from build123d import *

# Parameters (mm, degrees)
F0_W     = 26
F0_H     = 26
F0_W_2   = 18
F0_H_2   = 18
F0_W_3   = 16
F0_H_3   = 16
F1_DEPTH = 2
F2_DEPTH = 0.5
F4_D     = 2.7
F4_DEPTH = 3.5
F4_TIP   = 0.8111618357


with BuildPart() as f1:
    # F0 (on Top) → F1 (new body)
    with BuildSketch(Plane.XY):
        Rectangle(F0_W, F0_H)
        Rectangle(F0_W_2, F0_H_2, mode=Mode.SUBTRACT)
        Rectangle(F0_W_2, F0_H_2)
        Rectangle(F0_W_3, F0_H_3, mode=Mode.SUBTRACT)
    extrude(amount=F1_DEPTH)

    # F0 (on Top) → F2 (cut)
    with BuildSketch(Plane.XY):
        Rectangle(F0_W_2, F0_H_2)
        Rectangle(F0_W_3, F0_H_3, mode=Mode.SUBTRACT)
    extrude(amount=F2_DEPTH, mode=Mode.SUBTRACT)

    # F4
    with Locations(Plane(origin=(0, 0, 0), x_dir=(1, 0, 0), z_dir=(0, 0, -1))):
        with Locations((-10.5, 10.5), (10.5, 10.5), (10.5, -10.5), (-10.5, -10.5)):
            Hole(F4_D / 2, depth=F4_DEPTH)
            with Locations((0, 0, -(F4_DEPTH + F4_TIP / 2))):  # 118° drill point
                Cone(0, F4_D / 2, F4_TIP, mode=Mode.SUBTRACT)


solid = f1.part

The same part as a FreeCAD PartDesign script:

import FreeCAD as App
import Part
import Sketcher

doc = App.newDocument("Part")
body = doc.addObject("PartDesign::Body", "Body")

# Sketch on XY plane
sketch1 = doc.addObject("Sketcher::SketchObject", "Sketch")
body.addObject(sketch1)
sketch1.AttachmentSupport = (doc.XY_Plane, [""])
sketch1.MapMode = "FlatFace"
sketch1.addGeometry(Part.LineSegment(App.Vector(-13, 13, 0), App.Vector(-13, -13, 0)), False)
sketch1.addGeometry(Part.LineSegment(App.Vector(-13, -13, 0), App.Vector(13, -13, 0)), False)
sketch1.addGeometry(Part.LineSegment(App.Vector(13, -13, 0), App.Vector(13, 13, 0)), False)
sketch1.addGeometry(Part.LineSegment(App.Vector(13, 13, 0), App.Vector(-13, 13, 0)), False)
sketch1.addGeometry(Part.LineSegment(App.Vector(8, -8, 0), App.Vector(-8, -8, 0)), False)
sketch1.addGeometry(Part.LineSegment(App.Vector(-8, -8, 0), App.Vector(-8, 8, 0)), False)
sketch1.addGeometry(Part.LineSegment(App.Vector(-8, 8, 0), App.Vector(8, 8, 0)), False)
sketch1.addGeometry(Part.LineSegment(App.Vector(8, 8, 0), App.Vector(8, -8, 0)), False)
sketch1.addConstraint(Sketcher.Constraint("Coincident", 0, 2, 1, 1))
sketch1.addConstraint(Sketcher.Constraint("Coincident", 1, 2, 2, 1))
sketch1.addConstraint(Sketcher.Constraint("Coincident", 2, 2, 3, 1))
sketch1.addConstraint(Sketcher.Constraint("Coincident", 3, 2, 0, 1))
sketch1.addConstraint(Sketcher.Constraint("Coincident", 4, 2, 5, 1))
sketch1.addConstraint(Sketcher.Constraint("Coincident", 5, 2, 6, 1))
sketch1.addConstraint(Sketcher.Constraint("Coincident", 6, 2, 7, 1))
sketch1.addConstraint(Sketcher.Constraint("Coincident", 7, 2, 4, 1))
sketch1.addConstraint(Sketcher.Constraint("Vertical", 0))
sketch1.addConstraint(Sketcher.Constraint("Horizontal", 1))
sketch1.addConstraint(Sketcher.Constraint("Vertical", 2))
sketch1.addConstraint(Sketcher.Constraint("Horizontal", 3))
sketch1.addConstraint(Sketcher.Constraint("Horizontal", 4))
sketch1.addConstraint(Sketcher.Constraint("Vertical", 5))
sketch1.addConstraint(Sketcher.Constraint("Horizontal", 6))
sketch1.addConstraint(Sketcher.Constraint("Vertical", 7))
sketch1.addConstraint(Sketcher.Constraint("Symmetric", 0, 2, 2, 2, -1, 1))
sketch1.addConstraint(Sketcher.Constraint("Symmetric", 4, 2, 6, 2, -1, 1))
sketch1.addConstraint(Sketcher.Constraint("Equal", 3, 0))
sketch1.addConstraint(Sketcher.Constraint("Equal", 6, 5))
sketch1.addConstraint(Sketcher.Constraint("DistanceX", 1, 1, 1, 2, 26.0))
sketch1.addConstraint(Sketcher.Constraint("DistanceX", 4, 2, 4, 1, 16.0))
pad1 = doc.addObject("PartDesign::Pad", "Pad")
body.addObject(pad1)
pad1.Profile = sketch1
pad1.Length = 2

# Sketch on XY plane
sketch2 = doc.addObject("Sketcher::SketchObject", "Sketch001")
body.addObject(sketch2)
sketch2.AttachmentSupport = (doc.XY_Plane, [""])
sketch2.MapMode = "FlatFace"
sketch2.addGeometry(Part.LineSegment(App.Vector(-9, 9, 0), App.Vector(-9, -9, 0)), False)
sketch2.addGeometry(Part.LineSegment(App.Vector(-9, -9, 0), App.Vector(9, -9, 0)), False)
sketch2.addGeometry(Part.LineSegment(App.Vector(9, -9, 0), App.Vector(9, 9, 0)), False)
sketch2.addGeometry(Part.LineSegment(App.Vector(9, 9, 0), App.Vector(-9, 9, 0)), False)
sketch2.addGeometry(Part.LineSegment(App.Vector(8, -8, 0), App.Vector(-8, -8, 0)), False)
sketch2.addGeometry(Part.LineSegment(App.Vector(-8, -8, 0), App.Vector(-8, 8, 0)), False)
sketch2.addGeometry(Part.LineSegment(App.Vector(-8, 8, 0), App.Vector(8, 8, 0)), False)
sketch2.addGeometry(Part.LineSegment(App.Vector(8, 8, 0), App.Vector(8, -8, 0)), False)
sketch2.addConstraint(Sketcher.Constraint("Coincident", 0, 2, 1, 1))
sketch2.addConstraint(Sketcher.Constraint("Coincident", 1, 2, 2, 1))
sketch2.addConstraint(Sketcher.Constraint("Coincident", 2, 2, 3, 1))
sketch2.addConstraint(Sketcher.Constraint("Coincident", 3, 2, 0, 1))
sketch2.addConstraint(Sketcher.Constraint("Coincident", 4, 2, 5, 1))
sketch2.addConstraint(Sketcher.Constraint("Coincident", 5, 2, 6, 1))
sketch2.addConstraint(Sketcher.Constraint("Coincident", 6, 2, 7, 1))
sketch2.addConstraint(Sketcher.Constraint("Coincident", 7, 2, 4, 1))
sketch2.addConstraint(Sketcher.Constraint("Vertical", 0))
sketch2.addConstraint(Sketcher.Constraint("Horizontal", 1))
sketch2.addConstraint(Sketcher.Constraint("Vertical", 2))
sketch2.addConstraint(Sketcher.Constraint("Horizontal", 3))
sketch2.addConstraint(Sketcher.Constraint("Horizontal", 4))
sketch2.addConstraint(Sketcher.Constraint("Vertical", 5))
sketch2.addConstraint(Sketcher.Constraint("Horizontal", 6))
sketch2.addConstraint(Sketcher.Constraint("Vertical", 7))
sketch2.addConstraint(Sketcher.Constraint("Symmetric", 0, 2, 2, 2, -1, 1))
sketch2.addConstraint(Sketcher.Constraint("Symmetric", 4, 2, 6, 2, -1, 1))
sketch2.addConstraint(Sketcher.Constraint("Equal", 3, 0))
sketch2.addConstraint(Sketcher.Constraint("Equal", 6, 5))
sketch2.addConstraint(Sketcher.Constraint("DistanceX", 1, 1, 1, 2, 18.0))
sketch2.addConstraint(Sketcher.Constraint("DistanceX", 4, 2, 4, 1, 16.0))
pocket1 = doc.addObject("PartDesign::Pocket", "Pocket")
body.addObject(pocket1)
pocket1.Profile = sketch2
pocket1.Length = 0.5
pocket1.Reversed = True

# Sketch on XY plane
sketch3 = doc.addObject("Sketcher::SketchObject", "Sketch002")
body.addObject(sketch3)
sketch3.AttachmentSupport = (doc.XY_Plane, [""])
sketch3.MapMode = "FlatFace"
sketch3.addGeometry(Part.Circle(App.Vector(-10.5, -10.5, 0), App.Vector(0, 0, 1), 1.4), False)
sketch3.addGeometry(Part.Circle(App.Vector(10.5, -10.5, 0), App.Vector(0, 0, 1), 1.4), False)
sketch3.addGeometry(Part.Circle(App.Vector(10.5, 10.5, 0), App.Vector(0, 0, 1), 1.4), False)
sketch3.addGeometry(Part.Circle(App.Vector(-10.5, 10.5, 0), App.Vector(0, 0, 1), 1.4), False)
sketch3.addConstraint(Sketcher.Constraint("Equal", 0, 1))
sketch3.addConstraint(Sketcher.Constraint("Equal", 1, 2))
sketch3.addConstraint(Sketcher.Constraint("Equal", 2, 3))
sketch3.addConstraint(Sketcher.Constraint("Symmetric", 0, 3, 2, 3, -1, 1))
sketch3.addConstraint(Sketcher.Constraint("Symmetric", 1, 3, 3, 3, -1, 1))
sketch3.addConstraint(Sketcher.Constraint("Symmetric", 0, 3, 1, 3, -2))
sketch3.addConstraint(Sketcher.Constraint("Diameter", 0, 2.7))
sketch3.addConstraint(Sketcher.Constraint("DistanceX", 0, 3, 1, 3, 21.0))
sketch3.addConstraint(Sketcher.Constraint("DistanceY", 1, 3, 2, 3, 21.0))
doc.recompute()
hole = doc.addObject("PartDesign::Hole", "Hole")
body.addObject(hole)
hole.Profile = sketch3
hole.ThreadType = "None"
hole.Diameter = 2.7
hole.DepthType = "Dimension"
hole.Depth = 3.5
hole.DrillPoint = "Angled"
hole.DrillPointAngle = 118
hole.Reversed = True

doc.recompute()
